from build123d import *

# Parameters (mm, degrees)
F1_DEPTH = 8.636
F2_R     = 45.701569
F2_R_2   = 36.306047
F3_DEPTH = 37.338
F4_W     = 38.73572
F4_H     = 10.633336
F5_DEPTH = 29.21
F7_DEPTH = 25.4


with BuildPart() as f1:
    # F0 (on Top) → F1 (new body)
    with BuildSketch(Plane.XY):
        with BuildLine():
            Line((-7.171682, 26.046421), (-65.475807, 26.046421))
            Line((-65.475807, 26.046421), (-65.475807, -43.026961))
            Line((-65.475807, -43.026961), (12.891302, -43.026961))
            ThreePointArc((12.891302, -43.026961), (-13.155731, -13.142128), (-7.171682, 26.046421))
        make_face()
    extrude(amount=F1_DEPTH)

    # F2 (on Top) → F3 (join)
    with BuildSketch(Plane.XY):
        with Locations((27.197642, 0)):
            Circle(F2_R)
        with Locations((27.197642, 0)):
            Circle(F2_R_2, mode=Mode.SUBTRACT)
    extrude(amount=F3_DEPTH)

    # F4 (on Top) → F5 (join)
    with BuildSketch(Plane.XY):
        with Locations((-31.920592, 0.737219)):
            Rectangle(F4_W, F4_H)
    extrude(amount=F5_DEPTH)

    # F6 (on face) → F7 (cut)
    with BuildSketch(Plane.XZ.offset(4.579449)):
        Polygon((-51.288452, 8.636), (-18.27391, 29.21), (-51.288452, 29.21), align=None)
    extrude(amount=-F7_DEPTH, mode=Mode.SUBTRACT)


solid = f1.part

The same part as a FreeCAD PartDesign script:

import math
import FreeCAD as App
import Part
import Sketcher
Q = App.Units.Quantity

doc = App.newDocument("Part")
body = doc.addObject("PartDesign::Body", "Body")

sketch1 = doc.addObject("Sketcher::SketchObject", "Sketch")
body.addObject(sketch1)
sketch1.AttachmentSupport = (doc.XY_Plane, [""])
sketch1.MapMode = "FlatFace"
sketch1.addGeometry([
    Part.LineSegment(App.Vector(-7, 26, 0), App.Vector(-65, 26, 0)),
    Part.LineSegment(App.Vector(-65, 26, 0), App.Vector(-65, -43, 0)),
    Part.LineSegment(App.Vector(-65, -43, 0), App.Vector(13, -43, 0)),
    Part.ArcOfCircle(Part.Circle(App.Vector(32, 0, 0), App.Vector(0, 0, 1), 47), math.radians(146), math.radians(246)),
], False)
sketch1.addConstraint([
    Sketcher.Constraint("Coincident", 0, 2, 1, 1),
    Sketcher.Constraint("Coincident", 1, 2, 2, 1),
    Sketcher.Constraint("Coincident", 2, 2, 3, 2),
    Sketcher.Constraint("Coincident", 3, 1, 0, 1),
    Sketcher.Constraint("Horizontal", 0),
    Sketcher.Constraint("Vertical", 1),
    Sketcher.Constraint("Horizontal", 2),
    Sketcher.Constraint("PointOnObject", 3, 3, -1),
    Sketcher.Constraint("Radius", 3, Q("47.116052 mm")),
    Sketcher.Constraint("DistanceX", 2, 1, 2, 2, Q("78.367109 mm")),
    Sketcher.Constraint("DistanceY", 1, 2, 1, 1, Q("69.073382 mm")),
    Sketcher.Constraint("DistanceX", 0, 2, 0, 1, Q("58.304125 mm")),
    Sketcher.Constraint("DistanceX", -1, 1, 3, 3, Q("32.090339 mm")),
])
pad1 = doc.addObject("PartDesign::Pad", "Pad")
body.addObject(pad1)
pad1.Profile = sketch1
pad1.Length = Q("0.34 in")

sketch2 = doc.addObject("Sketcher::SketchObject", "Sketch001")
body.addObject(sketch2)
sketch2.AttachmentSupport = (doc.XY_Plane, [""])
sketch2.MapMode = "FlatFace"
sketch2.addGeometry([
    Part.Circle(App.Vector(27, 0, 0), App.Vector(0, 0, 1), 46),
    Part.Circle(App.Vector(27, 0, 0), App.Vector(0, 0, 1), 36),
], False)
sketch2.addConstraint([
    Sketcher.Constraint("Coincident", 1, 3, 0, 3),
    Sketcher.Constraint("PointOnObject", 0, 3, -1),
    Sketcher.Constraint("Diameter", 0, Q("91.403138 mm")),
    Sketcher.Constraint("Diameter", 1, Q("72.612094 mm")),
    Sketcher.Constraint("DistanceX", -1, 1, 0, 3, Q("27.197642 mm")),
])
pad2 = doc.addObject("PartDesign::Pad", "Pad001")
body.addObject(pad2)
pad2.Profile = sketch2
pad2.Length = Q("1.47 in")

sketch3 = doc.addObject("Sketcher::SketchObject", "Sketch002")
body.addObject(sketch3)
sketch3.AttachmentSupport = (doc.XY_Plane, [""])
sketch3.MapMode = "FlatFace"
sketch3.addGeometry([
    Part.LineSegment(App.Vector(-51, 6, 0), App.Vector(-51, -5, 0)),
    Part.LineSegment(App.Vector(-51, -5, 0), App.Vector(-13, -5, 0)),
    Part.LineSegment(App.Vector(-13, -5, 0), App.Vector(-13, 6, 0)),
    Part.LineSegment(App.Vector(-13, 6, 0), App.Vector(-51, 6, 0)),
], False)
sketch3.addConstraint([
    Sketcher.Constraint("Coincident", 0, 2, 1, 1),
    Sketcher.Constraint("Coincident", 1, 2, 2, 1),
    Sketcher.Constraint("Coincident", 2, 2, 3, 1),
    Sketcher.Constraint("Coincident", 3, 2, 0, 1),
    Sketcher.Constraint("Vertical", 0),
    Sketcher.Constraint("Horizontal", 1),
    Sketcher.Constraint("Vertical", 2),
    Sketcher.Constraint("Horizontal", 3),
    Sketcher.Constraint("DistanceX", 1, 1, 1, 2, Q("38.73572 mm")),
    Sketcher.Constraint("DistanceY", 0, 2, 0, 1, Q("10.633336 mm")),
    Sketcher.Constraint("DistanceY", 0, 2, -1, 1, Q("4.579449 mm")),
    Sketcher.Constraint("DistanceX", 0, 2, -1, 1, Q("51.288452 mm")),
])
pad3 = doc.addObject("PartDesign::Pad", "Pad002")
body.addObject(pad3)
pad3.Profile = sketch3
pad3.Length = Q("1.15 in")

sketch4 = doc.addObject("Sketcher::SketchObject", "Sketch003")
body.addObject(sketch4)
sketch4.AttachmentSupport = (doc.XZ_Plane, [""])
sketch4.MapMode = "FlatFace"
sketch4.AttachmentOffset = App.Placement(App.Vector(0, 0, 4.579449), App.Rotation())
sketch4.addGeometry([
    Part.LineSegment(App.Vector(-51, 9, 0), App.Vector(-18, 29, 0)),
    Part.LineSegment(App.Vector(-18, 29, 0), App.Vector(-51, 29, 0)),
    Part.LineSegment(App.Vector(-51, 29, 0), App.Vector(-51, 9, 0)),
], False)
sketch4.addConstraint([
    Sketcher.Constraint("Coincident", 0, 2, 1, 1),
    Sketcher.Constraint("Coincident", 1, 2, 2, 1),
    Sketcher.Constraint("Coincident", 2, 2, 0, 1),
    Sketcher.Constraint("Horizontal", 1),
    Sketcher.Constraint("Vertical", 2),
    Sketcher.Constraint("DistanceY", 2, 2, 2, 1, Q("0.81 in")),
    Sketcher.Constraint("DistanceY", -1, 1, 0, 2, Q("1.15 in")),
    Sketcher.Constraint("DistanceX", 1, 2, 1, 1, Q("33.014542 mm")),
    Sketcher.Constraint("DistanceX", 0, 2, -1, 1, Q("18.27391 mm")),
])
pocket1 = doc.addObject("PartDesign::Pocket", "Pocket")
body.addObject(pocket1)
pocket1.Profile = sketch4
pocket1.Length = Q("1 in")

doc.recompute()
